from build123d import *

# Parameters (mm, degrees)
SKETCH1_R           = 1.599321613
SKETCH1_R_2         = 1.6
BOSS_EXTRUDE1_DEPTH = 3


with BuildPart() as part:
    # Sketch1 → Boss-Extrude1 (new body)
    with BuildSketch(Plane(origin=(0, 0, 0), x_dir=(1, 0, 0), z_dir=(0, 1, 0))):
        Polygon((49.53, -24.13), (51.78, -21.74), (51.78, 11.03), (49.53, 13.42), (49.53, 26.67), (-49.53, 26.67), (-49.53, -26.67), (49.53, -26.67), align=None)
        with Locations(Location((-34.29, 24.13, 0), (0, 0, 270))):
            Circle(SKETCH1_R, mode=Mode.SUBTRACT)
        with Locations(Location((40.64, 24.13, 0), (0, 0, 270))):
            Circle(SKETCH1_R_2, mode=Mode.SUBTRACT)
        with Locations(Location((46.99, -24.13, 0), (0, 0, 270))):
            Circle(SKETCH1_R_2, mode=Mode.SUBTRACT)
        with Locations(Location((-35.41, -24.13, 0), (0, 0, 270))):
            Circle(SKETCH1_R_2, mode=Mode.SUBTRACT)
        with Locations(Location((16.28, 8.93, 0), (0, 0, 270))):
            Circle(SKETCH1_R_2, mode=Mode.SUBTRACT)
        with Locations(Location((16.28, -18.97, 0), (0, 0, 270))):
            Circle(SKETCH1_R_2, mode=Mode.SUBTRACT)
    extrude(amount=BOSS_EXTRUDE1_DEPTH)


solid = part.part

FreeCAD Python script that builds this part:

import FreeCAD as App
import Part
import Sketcher

V = App.Vector
Q = App.Units.Quantity

doc = App.newDocument("Part")
body = doc.addObject("PartDesign::Body", "Body")

# Sketch on XZ plane
sketch1 = body.newObject("Sketcher::SketchObject", "Sketch")
sketch1.AttachmentSupport = (doc.getObject("XZ_Plane"), [""])
sketch1.MapMode = "FlatFace"
sketch1.addGeometry([
    Part.LineSegment(V(49.5, 24.1, 0), V(51.8, 21.7, 0)),  # 0
    Part.LineSegment(V(51.8, 21.7, 0), V(51.8, -11, 0)),  # 1
    Part.LineSegment(V(51.8, -11, 0), V(49.5, -13.4, 0)),  # 2
    Part.LineSegment(V(49.5, -13.4, 0), V(49.5, -26.7, 0)),  # 3
    Part.LineSegment(V(49.5, -26.7, 0), V(-49.5, -26.7, 0)),  # 4
    Part.LineSegment(V(-49.5, -26.7, 0), V(-49.5, 26.7, 0)),  # 5
    Part.LineSegment(V(-49.5, 26.7, 0), V(49.5, 26.7, 0)),  # 6
    Part.LineSegment(V(49.5, 26.7, 0), V(49.5, 24.1, 0)),  # 7
    Part.Circle(V(-35.4, 24.1, 0), V(0, 0, 1), 1.6),  # 8
    Part.Circle(V(16.3, 19, 0), V(0, 0, 1), 1.6),  # 9
    Part.Circle(V(47, 24.1, 0), V(0, 0, 1), 1.6),  # 10
    Part.Circle(V(-34.3, -24.1, 0), V(0, 0, 1), 1.6),  # 11
    Part.Circle(V(16.3, -8.9, 0), V(0, 0, 1), 1.6),  # 12
    Part.Circle(V(40.6, -24.1, 0), V(0, 0, 1), 1.6),  # 13
], False)
sketch1.addConstraint([
    Sketcher.Constraint("Coincident", 0, 2, 1, 1),
    Sketcher.Constraint("Coincident", 1, 2, 2, 1),
    Sketcher.Constraint("Coincident", 2, 2, 3, 1),
    Sketcher.Constraint("Coincident", 3, 2, 4, 1),
    Sketcher.Constraint("Coincident", 4, 2, 5, 1),
    Sketcher.Constraint("Coincident", 5, 2, 6, 1),
    Sketcher.Constraint("Coincident", 6, 2, 7, 1),
    Sketcher.Constraint("Coincident", 7, 2, 0, 1),
    Sketcher.Constraint("Vertical", 1),
    Sketcher.Constraint("Vertical", 3),
    Sketcher.Constraint("Horizontal", 4),
    Sketcher.Constraint("Vertical", 5),
    Sketcher.Constraint("Horizontal", 6),
    Sketcher.Constraint("Vertical", 7),
    Sketcher.Constraint("Equal", 8, 9),
    Sketcher.Constraint("Equal", 9, 10),
    Sketcher.Constraint("Equal", 10, 12),
    Sketcher.Constraint("Equal", 12, 13),
    Sketcher.Constraint("Symmetric", 3, 2, 5, 2, -1, 1),
    Sketcher.Constraint("Horizontal", 8, 3, 10, 3),
    Sketcher.Constraint("Horizontal", 11, 3, 13, 3),
    Sketcher.Constraint("Horizontal", 10, 3, 7, 2),
    Sketcher.Constraint("Vertical", 9, 3, 12, 3),
    Sketcher.Constraint("Vertical", 3, 2, 6, 2),
    Sketcher.Constraint("Equal", 0, 2),
    Sketcher.Constraint("DistanceX", 4, 2, 4, 1, Q("3.9 in")),
    Sketcher.Constraint("DistanceY", 5, 1, 5, 2, Q("2.1 in")),
    Sketcher.Constraint("DistanceY", 7, 2, 7, 1, Q("0.1 in")),
    Sketcher.Constraint("DistanceY", 11, 3, 5, 2, Q("2 in")),
    Sketcher.Constraint("DistanceX", -1, 1, 13, 3, Q("1.6 in")),
    Sketcher.Constraint("DistanceX", 11, 3, 10, 3, Q("3.2 in")),
    Sketcher.Constraint("DistanceX", 10, 3, 2, 2, Q("0.1 in")),
    Sketcher.Constraint("Diameter", 8, Q("3.2 mm")),
    Sketcher.Constraint("Diameter", 11, Q("3.198643 mm")),
    Sketcher.Constraint("DistanceY", 1, 2, 1, 1, Q("32.77 mm")),
    Sketcher.Constraint("DistanceY", 3, 2, 3, 1, Q("13.25 mm")),
    Sketcher.Constraint("DistanceX", 8, 3, -1, 1, Q("35.41 mm")),
    Sketcher.Constraint("DistanceX", -1, 1, 9, 3, Q("16.28 mm")),
    Sketcher.Constraint("DistanceY", -1, 1, 9, 3, Q("18.97 mm")),
    Sketcher.Constraint("DistanceY", 12, 3, -1, 1, Q("8.93 mm")),
    Sketcher.Constraint("DistanceX", -1, 1, 0, 2, Q("51.78 mm")),
])
pad1 = body.newObject("PartDesign::Pad", "Pad")
pad1.Profile = sketch1
pad1.Length = 3
pad1.Reversed = True

doc.recompute()
